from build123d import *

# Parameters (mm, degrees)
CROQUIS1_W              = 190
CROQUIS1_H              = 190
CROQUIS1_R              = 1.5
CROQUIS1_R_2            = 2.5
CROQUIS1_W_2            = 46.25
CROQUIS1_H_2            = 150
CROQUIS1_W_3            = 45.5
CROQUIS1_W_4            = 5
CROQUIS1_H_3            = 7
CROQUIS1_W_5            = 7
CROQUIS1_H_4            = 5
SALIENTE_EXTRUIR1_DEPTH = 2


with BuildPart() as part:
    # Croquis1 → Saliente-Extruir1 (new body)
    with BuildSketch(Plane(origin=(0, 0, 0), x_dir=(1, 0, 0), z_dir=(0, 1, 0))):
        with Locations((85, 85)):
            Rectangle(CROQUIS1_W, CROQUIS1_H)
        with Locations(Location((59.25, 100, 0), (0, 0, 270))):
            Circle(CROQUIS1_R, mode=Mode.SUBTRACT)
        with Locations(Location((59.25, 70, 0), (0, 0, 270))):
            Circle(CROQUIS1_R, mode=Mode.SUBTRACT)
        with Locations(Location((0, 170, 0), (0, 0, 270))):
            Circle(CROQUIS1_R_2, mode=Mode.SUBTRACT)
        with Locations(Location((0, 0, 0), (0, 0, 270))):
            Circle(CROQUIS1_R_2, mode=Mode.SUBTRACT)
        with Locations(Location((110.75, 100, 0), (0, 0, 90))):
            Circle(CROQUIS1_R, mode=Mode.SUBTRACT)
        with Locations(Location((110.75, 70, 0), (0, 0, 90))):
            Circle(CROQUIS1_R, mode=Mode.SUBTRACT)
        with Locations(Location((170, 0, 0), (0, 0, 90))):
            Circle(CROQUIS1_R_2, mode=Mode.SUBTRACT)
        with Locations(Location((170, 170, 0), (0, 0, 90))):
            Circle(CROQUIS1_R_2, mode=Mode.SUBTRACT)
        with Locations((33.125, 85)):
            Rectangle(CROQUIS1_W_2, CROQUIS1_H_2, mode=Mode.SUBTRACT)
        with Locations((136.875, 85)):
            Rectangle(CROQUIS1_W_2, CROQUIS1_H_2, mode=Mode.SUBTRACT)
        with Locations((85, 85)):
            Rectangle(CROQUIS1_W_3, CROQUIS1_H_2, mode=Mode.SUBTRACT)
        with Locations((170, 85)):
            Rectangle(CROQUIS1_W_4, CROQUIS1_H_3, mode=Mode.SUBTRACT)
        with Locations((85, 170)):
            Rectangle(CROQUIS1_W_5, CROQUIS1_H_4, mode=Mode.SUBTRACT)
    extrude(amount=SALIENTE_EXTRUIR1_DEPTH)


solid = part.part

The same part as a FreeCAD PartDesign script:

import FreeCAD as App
import Part
import Sketcher


def add_polygon(sketch, points):
    """Adds a closed chain of lines whose ends are joined by coincident constraints."""
    first, n = sketch.GeometryCount, len(points)
    for a, b in zip(points, points[1:] + points[:1]):
        sketch.addGeometry(Part.LineSegment(App.Vector(*a, 0), App.Vector(*b, 0)), False)
    for i in range(n):
        sketch.addConstraint(Sketcher.Constraint("Coincident", first + i, 2, first + (i + 1) % n, 1))

doc = App.newDocument("Part")
params = doc.addObject("Spreadsheet::Sheet", "Params")
for row, (alias, value) in enumerate([
    ("sketch1_diameter", "5 mm"),
    ("sketch1_diameter2", "3 mm"),
    ("sketch1_width", "190 mm"),
    ("sketch1_width2", "5 mm"),
    ("sketch1_width3", "7 mm"),
    ("pad1_length", "2 mm"),
], start=1):
    params.set(f"A{row}", alias)
    params.set(f"B{row}", "=" + value)
    params.setAlias(f"B{row}", alias)

body = doc.addObject("PartDesign::Body", "Body")

sketch1 = doc.addObject("Sketcher::SketchObject", "Sketch")
body.addObject(sketch1)
sketch1.AttachmentSupport = (doc.XZ_Plane, [""])
sketch1.MapMode = "FlatFace"
add_polygon(sketch1, [(-10, -180), (-10, 10), (180, 10), (180, -180)])
sketch1.addGeometry(Part.Circle(App.Vector(0, 0, 0), App.Vector(0, 0, 1), 2.5), False)
sketch1.addGeometry(Part.Circle(App.Vector(59.2, -70, 0), App.Vector(0, 0, 1), 1.5), False)
sketch1.addGeometry(Part.Circle(App.Vector(170, 0, 0), App.Vector(0, 0, 1), 2.5), False)
sketch1.addGeometry(Part.Circle(App.Vector(110.8, -70, 0), App.Vector(0, 0, 1), 1.5), False)
add_polygon(sketch1, [(56.2, -10), (10, -10), (10, -160), (56.2, -160)])
sketch1.addGeometry(Part.Circle(App.Vector(59.2, -100, 0), App.Vector(0, 0, 1), 1.5), False)
sketch1.addGeometry(Part.Circle(App.Vector(0, -170, 0), App.Vector(0, 0, 1), 2.5), False)
add_polygon(sketch1, [(107.8, -10), (62.2, -10), (62.2, -160), (107.8, -160)])
sketch1.addGeometry(Part.Circle(App.Vector(110.8, -100, 0), App.Vector(0, 0, 1), 1.5), False)
add_polygon(sketch1, [(160, -10), (113.8, -10), (113.8, -160), (160, -160)])
add_polygon(sketch1, [(172.5, -81.5), (167.5, -81.5), (167.5, -88.5), (172.5, -88.5)])
add_polygon(sketch1, [(88.5, -167.5), (81.5, -167.5), (81.5, -172.5), (88.5, -172.5)])
sketch1.addGeometry(Part.Circle(App.Vector(170, -170, 0), App.Vector(0, 0, 1), 2.5), False)
sketch1.addConstraint([
    Sketcher.Constraint("Vertical", 0),
    Sketcher.Constraint("Horizontal", 1),
    Sketcher.Constraint("Vertical", 2),
    Sketcher.Constraint("Horizontal", 3),
    Sketcher.Constraint("Horizontal", 8),
    Sketcher.Constraint("Vertical", 9),
    Sketcher.Constraint("Horizontal", 10),
    Sketcher.Constraint("Vertical", 11),
    Sketcher.Constraint("Horizontal", 14),
    Sketcher.Constraint("Vertical", 15),
    Sketcher.Constraint("Horizontal", 16),
    Sketcher.Constraint("Vertical", 17),
    Sketcher.Constraint("Horizontal", 19),
    Sketcher.Constraint("Vertical", 20),
    Sketcher.Constraint("Horizontal", 21),
    Sketcher.Constraint("Vertical", 22),
    Sketcher.Constraint("Horizontal", 23),
    Sketcher.Constraint("Vertical", 24),
    Sketcher.Constraint("Horizontal", 25),
    Sketcher.Constraint("Vertical", 26),
    Sketcher.Constraint("Horizontal", 27),
    Sketcher.Constraint("Vertical", 28),
    Sketcher.Constraint("Horizontal", 29),
    Sketcher.Constraint("Vertical", 30),
    Sketcher.Constraint("Coincident", 4, 3, -1, 1),
    Sketcher.Constraint("Equal", 4, 6),
    Sketcher.Constraint("Equal", 5, 7),
    Sketcher.Constraint("Equal", 7, 12),
    Sketcher.Constraint("Equal", 6, 13),
    Sketcher.Constraint("Equal", 12, 18),
    Sketcher.Constraint("Equal", 13, 31),
    Sketcher.Constraint("Symmetric", 0, 2, 8, 2, -1, 1),
    Sketcher.Constraint("PointOnObject", 6, 3, -1),
    Sketcher.Constraint("PointOnObject", 13, 3, -2),
    Sketcher.Constraint("Horizontal", 5, 3, 7, 3),
    Sketcher.Constraint("Horizontal", 12, 3, 18, 3),
    Sketcher.Constraint("Horizontal", 13, 3, 31, 3),
    Sketcher.Constraint("Horizontal", 11, 2, 14, 2),
    Sketcher.Constraint("Horizontal", 10, 2, 15, 2),
    Sketcher.Constraint("Horizontal", 17, 2, 19, 2),
    Sketcher.Constraint("Horizontal", 16, 2, 20, 2),
    Sketcher.Constraint("Vertical", 5, 3, 12, 3),
    Sketcher.Constraint("Vertical", 7, 3, 18, 3),
    Sketcher.Constraint("Vertical", 6, 3, 31, 3),
    Sketcher.Constraint("Equal", 10, 19),
    Sketcher.Constraint("Equal", 3, 0),
    Sketcher.Constraint("Equal", 29, 24),
    Sketcher.Constraint("Equal", 25, 28),
    Sketcher.Constraint("Diameter", 4, 5.0),
    Sketcher.Constraint("Diameter", 5, 3.0),
    Sketcher.Constraint("DistanceX", 1, 1, 1, 2, 190.0),
    Sketcher.Constraint("DistanceX", 23, 2, 23, 1, 5.0),
    Sketcher.Constraint("DistanceX", 27, 2, 27, 1, 7.0),
    Sketcher.Constraint("DistanceY", 9, 2, 9, 1, 150.0),
    Sketcher.Constraint("DistanceX", 14, 2, 14, 1, 45.5),
    Sketcher.Constraint("DistanceY", 5, 3, -1, 1, 70.0),
    Sketcher.Constraint("DistanceX", -1, 1, 6, 3, 170.0),
    Sketcher.Constraint("DistanceY", 12, 3, -1, 1, 100.0),
    Sketcher.Constraint("DistanceY", 13, 3, -1, 1, 170.0),
    Sketcher.Constraint("DistanceX", 0, 2, -1, 1, 10.0),
    Sketcher.Constraint("DistanceY", -1, 1, 0, 2, 10.0),
    Sketcher.Constraint("DistanceX", -1, 1, 21, 2, 160.0),
    Sketcher.Constraint("DistanceX", 10, 2, 12, 3, 3.0),
    Sketcher.Constraint("DistanceX", 11, 2, 14, 2, 6.0),
    Sketcher.Constraint("DistanceX", 16, 2, 18, 3, 3.0),
    Sketcher.Constraint("DistanceX", 17, 2, 19, 2, 6.0),
    Sketcher.Constraint("DistanceX", -1, 1, 23, 2, 167.5),
    Sketcher.Constraint("DistanceY", 23, 2, -1, 1, 81.5),
    Sketcher.Constraint("DistanceX", -1, 1, 27, 2, 81.5),
    Sketcher.Constraint("DistanceY", 27, 2, -1, 1, 167.5),
])
sketch1.setExpression("Constraints[72]", "Params.sketch1_diameter")
sketch1.setExpression("Constraints[73]", "Params.sketch1_diameter2")
sketch1.setExpression("Constraints[74]", "Params.sketch1_width")
sketch1.setExpression("Constraints[75]", "Params.sketch1_width2")
sketch1.setExpression("Constraints[76]", "Params.sketch1_width3")
pad1 = doc.addObject("PartDesign::Pad", "Pad")
body.addObject(pad1)
pad1.Profile = sketch1
pad1.setExpression("Length", "Params.pad1_length")
pad1.Reversed = True

doc.recompute()
